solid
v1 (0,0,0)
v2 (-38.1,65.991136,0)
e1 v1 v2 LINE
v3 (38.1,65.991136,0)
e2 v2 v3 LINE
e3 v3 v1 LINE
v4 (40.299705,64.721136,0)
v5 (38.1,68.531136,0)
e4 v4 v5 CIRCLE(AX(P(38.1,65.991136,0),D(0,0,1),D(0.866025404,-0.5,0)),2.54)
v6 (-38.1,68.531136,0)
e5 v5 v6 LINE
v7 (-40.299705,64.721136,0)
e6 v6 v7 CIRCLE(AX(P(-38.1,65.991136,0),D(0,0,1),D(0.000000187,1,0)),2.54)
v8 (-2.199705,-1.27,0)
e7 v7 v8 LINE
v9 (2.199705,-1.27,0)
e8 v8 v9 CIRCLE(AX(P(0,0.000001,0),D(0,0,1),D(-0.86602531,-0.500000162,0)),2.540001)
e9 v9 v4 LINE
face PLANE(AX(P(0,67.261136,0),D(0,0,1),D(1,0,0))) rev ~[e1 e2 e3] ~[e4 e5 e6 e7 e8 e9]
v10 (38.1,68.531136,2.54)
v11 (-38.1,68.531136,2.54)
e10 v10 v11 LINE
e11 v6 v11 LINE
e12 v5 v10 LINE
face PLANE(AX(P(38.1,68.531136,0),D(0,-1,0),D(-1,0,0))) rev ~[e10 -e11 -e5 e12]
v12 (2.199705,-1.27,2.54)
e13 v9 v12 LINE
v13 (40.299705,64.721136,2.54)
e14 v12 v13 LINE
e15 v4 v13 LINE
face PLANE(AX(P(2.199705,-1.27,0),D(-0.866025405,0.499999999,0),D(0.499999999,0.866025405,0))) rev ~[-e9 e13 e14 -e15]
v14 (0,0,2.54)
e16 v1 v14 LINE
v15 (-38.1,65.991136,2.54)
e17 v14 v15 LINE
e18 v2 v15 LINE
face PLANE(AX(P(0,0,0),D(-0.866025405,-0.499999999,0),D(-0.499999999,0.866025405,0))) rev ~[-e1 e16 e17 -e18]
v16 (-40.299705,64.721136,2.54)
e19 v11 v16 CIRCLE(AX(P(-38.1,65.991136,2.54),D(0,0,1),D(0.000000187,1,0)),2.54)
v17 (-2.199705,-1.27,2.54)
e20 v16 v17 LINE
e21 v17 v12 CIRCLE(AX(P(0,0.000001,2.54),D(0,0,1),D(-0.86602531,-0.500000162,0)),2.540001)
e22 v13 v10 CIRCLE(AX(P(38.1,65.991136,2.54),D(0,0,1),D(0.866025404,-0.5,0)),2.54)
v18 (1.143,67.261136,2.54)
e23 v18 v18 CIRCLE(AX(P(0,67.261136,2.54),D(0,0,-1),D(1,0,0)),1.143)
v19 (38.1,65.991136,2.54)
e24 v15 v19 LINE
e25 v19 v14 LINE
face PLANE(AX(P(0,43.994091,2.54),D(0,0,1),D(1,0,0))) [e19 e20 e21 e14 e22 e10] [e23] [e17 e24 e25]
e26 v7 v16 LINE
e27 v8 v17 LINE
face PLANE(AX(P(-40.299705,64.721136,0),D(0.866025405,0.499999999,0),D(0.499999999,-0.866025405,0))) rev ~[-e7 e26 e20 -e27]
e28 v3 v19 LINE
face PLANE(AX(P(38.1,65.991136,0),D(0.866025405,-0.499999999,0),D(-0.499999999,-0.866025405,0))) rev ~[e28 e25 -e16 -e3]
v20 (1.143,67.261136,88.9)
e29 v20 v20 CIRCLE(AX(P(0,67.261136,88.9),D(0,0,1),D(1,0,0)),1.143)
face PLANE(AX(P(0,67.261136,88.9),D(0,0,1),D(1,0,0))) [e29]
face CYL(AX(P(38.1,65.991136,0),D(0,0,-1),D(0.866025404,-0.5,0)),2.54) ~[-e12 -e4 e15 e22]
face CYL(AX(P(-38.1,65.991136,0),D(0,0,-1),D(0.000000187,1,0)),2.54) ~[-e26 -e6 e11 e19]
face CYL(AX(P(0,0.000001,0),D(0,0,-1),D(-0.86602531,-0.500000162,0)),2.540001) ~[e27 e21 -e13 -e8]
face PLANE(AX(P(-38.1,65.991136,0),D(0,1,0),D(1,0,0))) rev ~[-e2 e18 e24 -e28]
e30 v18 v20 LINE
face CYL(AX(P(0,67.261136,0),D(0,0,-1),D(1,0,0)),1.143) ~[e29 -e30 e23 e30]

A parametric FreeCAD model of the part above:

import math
import FreeCAD as App
import Part
import Sketcher
from FreeCAD import Vector
Q = App.Units.Quantity


def add_polygon(sketch, points):
    """Adds a closed chain of lines whose ends are joined by coincident constraints."""
    first, n = sketch.GeometryCount, len(points)
    for a, b in zip(points, points[1:] + points[:1]):
        sketch.addGeometry(Part.LineSegment(App.Vector(*a, 0), App.Vector(*b, 0)), False)
    for i in range(n):
        sketch.addConstraint(Sketcher.Constraint("Coincident", first + i, 2, first + (i + 1) % n, 1))

doc = App.newDocument("Part")
body = doc.addObject("PartDesign::Body", "Body")

sketch1 = body.newObject("Sketcher::SketchObject", "Sketch")
sketch1.AttachmentSupport = (doc.getObject("XY_Plane"), [""])
sketch1.MapMode = "FlatFace"
sketch1.addGeometry(Part.LineSegment(Vector(38.1, 68.531136, 0), Vector(-38.1, 68.531136, 0)), False)
sketch1.addGeometry(Part.ArcOfCircle(Part.Circle(Vector(-38.1, 65.991136, 0), Vector(0, 0, 1), 2.54), math.radians(89.999989), math.radians(210)), False)
sketch1.addGeometry(Part.LineSegment(Vector(-40.299705, 64.721136, 0), Vector(-2.199705, -1.27, 0)), False)
sketch1.addGeometry(Part.ArcOfCircle(Part.Circle(Vector(0, 0.000001, 0), Vector(0, 0, 1), 2.540001), math.radians(-149.999989), math.radians(-30.000011)), False)
sketch1.addGeometry(Part.LineSegment(Vector(2.199705, -1.27, 0), Vector(40.299705, 64.721136, 0)), False)
sketch1.addGeometry(Part.ArcOfCircle(Part.Circle(Vector(38.1, 65.991136, 0), Vector(0, 0, 1), 2.54), math.radians(-30), math.radians(90.000011)), False)
add_polygon(sketch1, [(-38.1, 65.991136), (38.1, 65.991136), (0, 0)])
sketch1.addConstraint([
    Sketcher.Constraint("Tangent", 0, 2, 1, 1),
    Sketcher.Constraint("Tangent", 1, 2, 2, 1),
    Sketcher.Constraint("Tangent", 2, 2, 3, 1),
    Sketcher.Constraint("Tangent", 3, 2, 4, 1),
    Sketcher.Constraint("Tangent", 4, 2, 5, 1),
    Sketcher.Constraint("Tangent", 5, 2, 0, 1),
    Sketcher.Constraint("Horizontal", 0),
    Sketcher.Constraint("Horizontal", 6),
    Sketcher.Constraint("Coincident", 3, 3, -1, 1),
    Sketcher.Constraint("Coincident", 7, 2, -1, 1),
    Sketcher.Constraint("Coincident", 6, 2, 5, 3),
    Sketcher.Constraint("Coincident", 8, 2, 1, 3),
    Sketcher.Constraint("Equal", 1, 3),
    Sketcher.Constraint("Horizontal", 2, 2, 3, 2),
    Sketcher.Constraint("Radius", 1, Q("0.1 in")),
    Sketcher.Constraint("DistanceX", 0, 2, 0, 1, Q("3 in")),
    Sketcher.Constraint("Distance", 2, Q("3 in")),
])
pad1 = body.newObject("PartDesign::Pad", "Pad")
pad1.Profile = sketch1
pad1.Length = Q("0.1 in")

sketch2 = body.newObject("Sketcher::SketchObject", "Sketch001")
sketch2.AttachmentSupport = (doc.getObject("XY_Plane"), [""])
sketch2.MapMode = "FlatFace"
sketch2.addGeometry(Part.Circle(Vector(0, 67.261136, 0), Vector(0, 0, 1), 1.143), False)
sketch2.addConstraint([
    Sketcher.Constraint("PointOnObject", 0, 3, -2),
    Sketcher.Constraint("Diameter", 0, Q("0.09 in")),
    Sketcher.Constraint("DistanceY", -1, 1, 0, 3, 67.261136),
])
pad2 = body.newObject("PartDesign::Pad", "Pad001")
pad2.Profile = sketch2
pad2.Length = Q("3.5 in")

doc.recompute()
